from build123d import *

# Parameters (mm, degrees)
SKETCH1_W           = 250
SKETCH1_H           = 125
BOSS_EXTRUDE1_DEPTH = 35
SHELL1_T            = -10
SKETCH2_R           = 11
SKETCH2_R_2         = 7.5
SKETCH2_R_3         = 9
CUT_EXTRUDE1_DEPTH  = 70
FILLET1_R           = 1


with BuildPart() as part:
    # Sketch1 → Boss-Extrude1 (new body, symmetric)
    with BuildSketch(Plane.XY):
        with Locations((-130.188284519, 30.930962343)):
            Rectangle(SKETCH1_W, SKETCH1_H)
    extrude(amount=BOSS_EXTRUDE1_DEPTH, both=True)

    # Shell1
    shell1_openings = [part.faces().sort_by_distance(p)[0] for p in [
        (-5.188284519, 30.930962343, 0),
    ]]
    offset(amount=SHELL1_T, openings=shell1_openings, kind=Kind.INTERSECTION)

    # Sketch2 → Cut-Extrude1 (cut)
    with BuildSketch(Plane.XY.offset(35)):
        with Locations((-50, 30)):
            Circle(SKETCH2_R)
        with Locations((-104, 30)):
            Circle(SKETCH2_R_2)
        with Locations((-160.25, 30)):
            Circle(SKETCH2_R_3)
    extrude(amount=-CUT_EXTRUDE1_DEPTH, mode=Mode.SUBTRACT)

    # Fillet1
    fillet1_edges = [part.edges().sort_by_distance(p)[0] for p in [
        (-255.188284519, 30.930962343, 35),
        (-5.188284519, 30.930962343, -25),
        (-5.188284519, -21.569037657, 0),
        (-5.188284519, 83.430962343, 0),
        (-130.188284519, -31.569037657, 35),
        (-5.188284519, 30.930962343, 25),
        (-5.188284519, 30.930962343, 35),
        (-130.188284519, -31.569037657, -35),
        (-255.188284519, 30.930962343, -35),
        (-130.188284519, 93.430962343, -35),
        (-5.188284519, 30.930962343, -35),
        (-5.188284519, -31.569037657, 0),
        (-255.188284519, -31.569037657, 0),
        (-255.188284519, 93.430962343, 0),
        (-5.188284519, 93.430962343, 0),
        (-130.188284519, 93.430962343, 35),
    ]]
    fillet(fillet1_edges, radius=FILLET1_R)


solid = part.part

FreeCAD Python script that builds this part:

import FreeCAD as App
import Part
import Sketcher
from FreeCAD import Vector


def edges_at(feature, points):
    """Names of the edges that pass closest to the given points."""
    edges = feature.Shape.Edges
    near = lambda p: min(range(len(edges)), key=lambda i: edges[i].distToShape(Part.Vertex(*p))[0])
    return sorted({f"Edge{near(p) + 1}" for p in points})


def faces_at(feature, points):
    """Names of the faces that lie closest to the given points."""
    faces = feature.Shape.Faces
    near = lambda p: min(range(len(faces)), key=lambda i: faces[i].distToShape(Part.Vertex(*p))[0])
    return sorted({f"Face{near(p) + 1}" for p in points})


def add_polygon(sketch, points):
    """Adds a closed chain of lines whose ends are joined by coincident constraints."""
    first, n = sketch.GeometryCount, len(points)
    for a, b in zip(points, points[1:] + points[:1]):
        sketch.addGeometry(Part.LineSegment(App.Vector(*a, 0), App.Vector(*b, 0)), False)
    for i in range(n):
        sketch.addConstraint(Sketcher.Constraint("Coincident", first + i, 2, first + (i + 1) % n, 1))

doc = App.newDocument("Part")
body = doc.addObject("PartDesign::Body", "Body")

sketch1 = body.newObject("Sketcher::SketchObject", "Sketch")
sketch1.AttachmentSupport = (doc.getObject("XY_Plane"), [""])
sketch1.MapMode = "FlatFace"
add_polygon(sketch1, [(-255.188285, 93.430962), (-255.188285, -31.569038), (-5.188285, -31.569038), (-5.188285, 93.430962)])
sketch1.addConstraint(Sketcher.Constraint("Vertical", 0))
sketch1.addConstraint(Sketcher.Constraint("Horizontal", 1))
sketch1.addConstraint(Sketcher.Constraint("Vertical", 2))
sketch1.addConstraint(Sketcher.Constraint("Horizontal", 3))
sketch1.addConstraint(Sketcher.Constraint("DistanceX", 1, 1, 1, 2, 250.0))
sketch1.addConstraint(Sketcher.Constraint("DistanceY", 0, 2, 0, 1, 125.0))
sketch1.addConstraint(Sketcher.Constraint("DistanceX", 0, 2, -1, 1, 255.188285))
sketch1.addConstraint(Sketcher.Constraint("DistanceY", 0, 2, -1, 1, 31.569038))
pad1 = body.newObject("PartDesign::Pad", "Pad")
pad1.Profile = sketch1
pad1.Length = 70
pad1.Midplane = True
doc.recompute()

thickness = body.newObject("PartDesign::Thickness", "Thickness")
thickness.Base = (pad1, faces_at(pad1, [(-5.188, 30.931, 0)]))
thickness.Value = 10
thickness.Reversed = True
thickness.Join = "Intersection"

sketch2 = body.newObject("Sketcher::SketchObject", "Sketch001")
sketch2.AttachmentSupport = (doc.getObject("XY_Plane"), [""])
sketch2.MapMode = "FlatFace"
sketch2.AttachmentOffset = App.Placement(Vector(0, 0, 35), App.Rotation())
sketch2.addGeometry(Part.Circle(Vector(-50, 30, 0), Vector(0, 0, 1), 11), False)
sketch2.addGeometry(Part.Circle(Vector(-104, 30, 0), Vector(0, 0, 1), 7.5), False)
sketch2.addGeometry(Part.Circle(Vector(-160.25, 30, 0), Vector(0, 0, 1), 9), False)
sketch2.addConstraint(Sketcher.Constraint("Horizontal", 0, 3, 1, 3))
sketch2.addConstraint(Sketcher.Constraint("Horizontal", 1, 3, 2, 3))
sketch2.addConstraint(Sketcher.Constraint("Diameter", 0, 22.0))
sketch2.addConstraint(Sketcher.Constraint("Diameter", 1, 15.0))
sketch2.addConstraint(Sketcher.Constraint("Diameter", 2, 18.0))
sketch2.addConstraint(Sketcher.Constraint("DistanceX", 0, 3, -1, 1, 50.0))
sketch2.addConstraint(Sketcher.Constraint("DistanceY", -1, 1, 0, 3, 30.0))
sketch2.addConstraint(Sketcher.Constraint("DistanceX", 1, 3, -1, 1, 104.0))
sketch2.addConstraint(Sketcher.Constraint("DistanceX", 2, 3, -1, 1, 160.25))
pocket1 = body.newObject("PartDesign::Pocket", "Pocket")
pocket1.Profile = sketch2
pocket1.Length = 70
doc.recompute()

fillet = body.newObject("PartDesign::Fillet", "Fillet")
fillet.Base = (pocket1, edges_at(pocket1, [
    (-255.188, 30.931, 35),
    (-5.188, 30.931, -25),
    (-5.188, -21.569, 0),
    (-5.188, 83.431, 0),
    (-130.188, -31.569, 35),
    (-5.188, 30.931, 25),
    (-5.188, 30.931, 35),
    (-130.188, -31.569, -35),
    (-255.188, 30.931, -35),
    (-130.188, 93.431, -35),
    (-5.188, 30.931, -35),
    (-5.188, -31.569, 0),
    (-255.188, -31.569, 0),
    (-255.188, 93.431, 0),
    (-5.188, 93.431, 0),
    (-130.188, 93.431, 35),
]))
fillet.Radius = 1

doc.recompute()
